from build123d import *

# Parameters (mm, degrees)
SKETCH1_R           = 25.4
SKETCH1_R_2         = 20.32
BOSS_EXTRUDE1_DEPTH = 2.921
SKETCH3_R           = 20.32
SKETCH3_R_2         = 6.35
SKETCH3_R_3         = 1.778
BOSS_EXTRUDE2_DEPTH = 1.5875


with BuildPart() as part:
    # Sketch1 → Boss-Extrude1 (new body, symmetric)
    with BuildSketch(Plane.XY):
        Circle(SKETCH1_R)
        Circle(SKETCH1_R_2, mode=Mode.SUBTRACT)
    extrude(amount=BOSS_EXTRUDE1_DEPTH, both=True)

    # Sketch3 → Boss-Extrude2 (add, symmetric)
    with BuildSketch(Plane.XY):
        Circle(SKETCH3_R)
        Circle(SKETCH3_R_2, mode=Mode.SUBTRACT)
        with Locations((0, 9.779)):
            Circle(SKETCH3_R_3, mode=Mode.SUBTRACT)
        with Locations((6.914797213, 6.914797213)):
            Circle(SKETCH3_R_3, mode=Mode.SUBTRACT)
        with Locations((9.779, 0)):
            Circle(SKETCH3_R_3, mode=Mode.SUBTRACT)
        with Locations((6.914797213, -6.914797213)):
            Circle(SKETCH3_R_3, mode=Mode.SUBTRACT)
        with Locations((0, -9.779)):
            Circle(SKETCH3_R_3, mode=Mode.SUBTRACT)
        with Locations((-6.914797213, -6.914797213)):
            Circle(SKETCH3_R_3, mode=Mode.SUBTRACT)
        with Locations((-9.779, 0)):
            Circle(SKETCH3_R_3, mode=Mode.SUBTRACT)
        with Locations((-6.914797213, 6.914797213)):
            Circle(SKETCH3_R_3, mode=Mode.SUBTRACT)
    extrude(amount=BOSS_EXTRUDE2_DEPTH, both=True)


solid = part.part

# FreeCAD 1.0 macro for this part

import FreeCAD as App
import Part
import Sketcher

V = App.Vector
Q = App.Units.Quantity

doc = App.newDocument("Part")
body = doc.addObject("PartDesign::Body", "Body")

# Sketch on XY plane
sketch1 = body.newObject("Sketcher::SketchObject", "Sketch")
sketch1.AttachmentSupport = (doc.getObject("XY_Plane"), [""])
sketch1.MapMode = "FlatFace"
sketch1.addGeometry([
    Part.Circle(V(0, 0, 0), V(0, 0, 1), 25),
    Part.Circle(V(0, 0, 0), V(0, 0, 1), 20),
], False)
sketch1.addConstraint([
    Sketcher.Constraint("Coincident", 0, 3, -1, 1),
    Sketcher.Constraint("Coincident", 1, 3, -1, 1),
    Sketcher.Constraint("Diameter", 0, Q("2 in")),
    Sketcher.Constraint("Diameter", 1, Q("1.6 in")),
])
pad1 = body.newObject("PartDesign::Pad", "Pad")
pad1.Profile = sketch1
pad1.Length = Q("0.23 in")
pad1.Midplane = True

# Sketch on XY plane
sketch2 = body.newObject("Sketcher::SketchObject", "Sketch001")
sketch2.AttachmentSupport = (doc.getObject("XY_Plane"), [""])
sketch2.MapMode = "FlatFace"
sketch2.addGeometry([
    Part.Circle(V(0, 0, 0), V(0, 0, 1), 20.3),  # 0
    Part.Circle(V(-6.9, -6.9, 0), V(0, 0, 1), 1.8),  # 1
    Part.Circle(V(0, -9.8, 0), V(0, 0, 1), 1.8),  # 2
    Part.Circle(V(-9.8, 0, 0), V(0, 0, 1), 1.8),  # 3
    Part.Circle(V(6.9, -6.9, 0), V(0, 0, 1), 1.8),  # 4
    Part.Circle(V(0, 0, 0), V(0, 0, 1), 6.3),  # 5
    Part.Circle(V(9.8, 0, 0), V(0, 0, 1), 1.8),  # 6
    Part.Circle(V(-6.9, 6.9, 0), V(0, 0, 1), 1.8),  # 7
    Part.Circle(V(0, 9.8, 0), V(0, 0, 1), 1.8),  # 8
    Part.Circle(V(6.9, 6.9, 0), V(0, 0, 1), 1.8),  # 9
], False)
sketch2.addConstraint([
    Sketcher.Constraint("Coincident", 0, 3, -1, 1),
    Sketcher.Constraint("Coincident", 5, 3, -1, 1),
    Sketcher.Constraint("Equal", 1, 2),
    Sketcher.Constraint("Equal", 2, 3),
    Sketcher.Constraint("Equal", 3, 4),
    Sketcher.Constraint("Equal", 4, 6),
    Sketcher.Constraint("Equal", 6, 7),
    Sketcher.Constraint("Equal", 7, 8),
    Sketcher.Constraint("Equal", 8, 9),
    Sketcher.Constraint("Symmetric", 3, 3, 6, 3, -1, 1),
    Sketcher.Constraint("Symmetric", 4, 3, 7, 3, -1, 1),
    Sketcher.Constraint("Symmetric", 2, 3, 8, 3, -1, 1),
    Sketcher.Constraint("Symmetric", 1, 3, 9, 3, -1, 1),
    Sketcher.Constraint("Symmetric", 1, 3, 4, 3, -2),
    Sketcher.Constraint("PointOnObject", 2, 3, -2),
    Sketcher.Constraint("PointOnObject", 3, 3, -1),
    Sketcher.Constraint("Diameter", 0, Q("1.6 in")),
    Sketcher.Constraint("Diameter", 5, Q("0.5 in")),
    Sketcher.Constraint("Diameter", 1, Q("0.14 in")),
    Sketcher.Constraint("DistanceY", 2, 3, -1, 1, Q("0.385 in")),
    Sketcher.Constraint("DistanceX", 3, 3, -1, 1, Q("0.385 in")),
    Sketcher.Constraint("DistanceX", 1, 3, -1, 1, 6.914797),
    Sketcher.Constraint("DistanceY", 1, 3, -1, 1, 6.914797),
])
pad2 = body.newObject("PartDesign::Pad", "Pad001")
pad2.Profile = sketch2
pad2.Length = Q("0.125 in")
pad2.Midplane = True

doc.recompute()
